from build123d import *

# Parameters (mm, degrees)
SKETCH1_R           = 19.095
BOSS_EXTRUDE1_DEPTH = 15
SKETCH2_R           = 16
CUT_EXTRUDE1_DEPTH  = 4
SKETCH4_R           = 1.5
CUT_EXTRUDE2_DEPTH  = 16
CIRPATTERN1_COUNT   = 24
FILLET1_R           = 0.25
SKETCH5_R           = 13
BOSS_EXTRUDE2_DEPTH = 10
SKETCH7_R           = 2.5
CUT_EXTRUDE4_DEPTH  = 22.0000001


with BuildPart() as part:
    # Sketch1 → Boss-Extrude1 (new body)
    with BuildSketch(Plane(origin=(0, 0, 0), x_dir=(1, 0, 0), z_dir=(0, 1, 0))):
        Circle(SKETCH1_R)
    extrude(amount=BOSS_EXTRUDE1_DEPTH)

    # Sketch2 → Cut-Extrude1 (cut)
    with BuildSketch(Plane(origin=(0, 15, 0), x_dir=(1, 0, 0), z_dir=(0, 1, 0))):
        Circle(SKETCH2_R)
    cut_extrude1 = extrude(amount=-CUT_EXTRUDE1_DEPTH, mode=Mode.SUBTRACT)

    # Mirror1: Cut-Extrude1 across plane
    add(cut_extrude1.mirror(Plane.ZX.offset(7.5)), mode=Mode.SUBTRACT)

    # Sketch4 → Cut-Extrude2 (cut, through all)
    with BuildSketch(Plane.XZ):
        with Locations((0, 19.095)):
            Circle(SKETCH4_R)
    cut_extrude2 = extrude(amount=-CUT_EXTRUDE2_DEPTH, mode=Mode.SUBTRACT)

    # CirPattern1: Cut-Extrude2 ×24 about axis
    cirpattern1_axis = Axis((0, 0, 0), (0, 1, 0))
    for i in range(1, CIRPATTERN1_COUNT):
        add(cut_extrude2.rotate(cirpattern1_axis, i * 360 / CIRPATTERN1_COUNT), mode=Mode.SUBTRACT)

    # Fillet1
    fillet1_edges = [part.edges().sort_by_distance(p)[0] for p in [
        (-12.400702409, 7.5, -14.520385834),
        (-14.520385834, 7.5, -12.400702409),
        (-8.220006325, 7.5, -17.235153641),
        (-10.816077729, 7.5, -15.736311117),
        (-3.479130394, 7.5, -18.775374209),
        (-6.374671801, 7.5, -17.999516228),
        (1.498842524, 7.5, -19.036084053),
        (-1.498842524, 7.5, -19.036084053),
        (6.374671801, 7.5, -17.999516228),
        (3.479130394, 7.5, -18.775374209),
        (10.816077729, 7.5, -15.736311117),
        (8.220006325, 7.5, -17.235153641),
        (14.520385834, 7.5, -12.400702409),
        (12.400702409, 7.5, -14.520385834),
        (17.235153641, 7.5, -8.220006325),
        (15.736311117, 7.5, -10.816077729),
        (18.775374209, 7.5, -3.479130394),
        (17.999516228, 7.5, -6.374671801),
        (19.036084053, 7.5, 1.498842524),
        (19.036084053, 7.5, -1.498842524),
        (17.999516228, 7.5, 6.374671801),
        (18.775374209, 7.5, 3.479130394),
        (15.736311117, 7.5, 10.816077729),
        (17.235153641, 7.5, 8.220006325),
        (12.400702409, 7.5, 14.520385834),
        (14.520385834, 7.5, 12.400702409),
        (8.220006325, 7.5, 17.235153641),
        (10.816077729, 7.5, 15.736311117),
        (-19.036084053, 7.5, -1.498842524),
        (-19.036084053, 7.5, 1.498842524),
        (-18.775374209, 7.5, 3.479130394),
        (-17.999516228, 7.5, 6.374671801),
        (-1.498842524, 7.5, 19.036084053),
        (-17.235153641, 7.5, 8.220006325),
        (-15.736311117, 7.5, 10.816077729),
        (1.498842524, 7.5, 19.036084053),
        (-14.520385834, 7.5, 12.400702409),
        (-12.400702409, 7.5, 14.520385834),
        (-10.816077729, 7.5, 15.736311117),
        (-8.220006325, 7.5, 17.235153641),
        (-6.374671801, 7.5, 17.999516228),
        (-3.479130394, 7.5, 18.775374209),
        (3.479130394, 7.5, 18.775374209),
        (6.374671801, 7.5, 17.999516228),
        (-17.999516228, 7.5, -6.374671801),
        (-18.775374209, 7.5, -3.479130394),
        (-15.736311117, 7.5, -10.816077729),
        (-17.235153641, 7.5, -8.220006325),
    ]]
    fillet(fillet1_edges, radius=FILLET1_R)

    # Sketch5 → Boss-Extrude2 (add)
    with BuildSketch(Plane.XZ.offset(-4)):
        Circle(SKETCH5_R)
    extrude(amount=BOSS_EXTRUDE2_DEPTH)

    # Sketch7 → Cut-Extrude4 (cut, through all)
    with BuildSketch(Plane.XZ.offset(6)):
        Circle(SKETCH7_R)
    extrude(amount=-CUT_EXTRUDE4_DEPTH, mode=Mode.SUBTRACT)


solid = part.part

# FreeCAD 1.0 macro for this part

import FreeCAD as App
import Part
import Sketcher

V = App.Vector


def edges_at(feature, points):
    """Names of the edges that pass closest to the given points."""
    edges = feature.Shape.Edges
    near = lambda p: min(range(len(edges)), key=lambda i: edges[i].distToShape(Part.Vertex(*p))[0])
    return sorted({f"Edge{near(p) + 1}" for p in points})

doc = App.newDocument("Part")
body = doc.addObject("PartDesign::Body", "Body")

# Sketch on XZ plane
sketch1 = body.newObject("Sketcher::SketchObject", "Sketch")
sketch1.AttachmentSupport = (doc.getObject("XZ_Plane"), [""])
sketch1.MapMode = "FlatFace"
sketch1.addGeometry(Part.Circle(V(0, 0, 0), V(0, 0, 1), 19.095), False)
sketch1.addConstraint([
    Sketcher.Constraint("Coincident", 0, 3, -1, 1),
    Sketcher.Constraint("Diameter", 0, 38.19),
])
pad1 = body.newObject("PartDesign::Pad", "Pad")
pad1.Profile = sketch1
pad1.Length = 15
pad1.Reversed = True

# Sketch on XZ plane
sketch2 = body.newObject("Sketcher::SketchObject", "Sketch001")
sketch2.AttachmentSupport = (doc.getObject("XZ_Plane"), [""])
sketch2.MapMode = "FlatFace"
sketch2.AttachmentOffset = App.Placement(V(0, 0, -15), App.Rotation())
sketch2.addGeometry(Part.Circle(V(0, 0, 0), V(0, 0, 1), 16), False)
sketch2.addConstraint([
    Sketcher.Constraint("Coincident", 0, 3, -1, 1),
    Sketcher.Constraint("Diameter", 0, 32.0),
])
pocket1 = body.newObject("PartDesign::Pocket", "Pocket")
pocket1.Profile = sketch2
pocket1.Length = 4
pocket1.Reversed = True
doc.recompute()

datumplane = body.newObject("PartDesign::Plane", "DatumPlane")
datumplane.AttachmentSupport = (doc.getObject("XZ_Plane"), [""])
datumplane.MapMode = "FlatFace"
datumplane.AttachmentOffset = App.Placement(V(0, 0, -7.5), App.Rotation())
mirrored = body.newObject("PartDesign::Mirrored", "Mirrored")
mirrored.Originals = [pocket1]
mirrored.MirrorPlane = (datumplane, [""])
body.Tip = mirrored

# Sketch on XZ plane
sketch3 = body.newObject("Sketcher::SketchObject", "Sketch002")
sketch3.AttachmentSupport = (doc.getObject("XZ_Plane"), [""])
sketch3.MapMode = "FlatFace"
sketch3.addGeometry(Part.Circle(V(0, 19.095, 0), V(0, 0, 1), 1.5), False)
sketch3.addConstraint([
    Sketcher.Constraint("PointOnObject", 0, 3, -2),
    Sketcher.Constraint("Diameter", 0, 3.0),
    Sketcher.Constraint("DistanceY", -1, 1, 0, 3, 19.095),
])
pocket2 = body.newObject("PartDesign::Pocket", "Pocket001")
pocket2.Profile = sketch3
pocket2.Type = "ThroughAll"
doc.recompute()

polarpattern = body.newObject("PartDesign::PolarPattern", "PolarPattern")
polarpattern.Originals = [pocket2]
polarpattern.Axis = (doc.getObject("Y_Axis"), [""])
polarpattern.Angle = 360
polarpattern.Occurrences = 24
body.Tip = polarpattern
doc.recompute()

fillet = body.newObject("PartDesign::Fillet", "Fillet")
fillet.Base = (polarpattern, edges_at(polarpattern, [
    (-12.401, 7.5, -14.52),
    (-14.52, 7.5, -12.401),
    (-8.22, 7.5, -17.235),
    (-10.816, 7.5, -15.736),
    (-3.479, 7.5, -18.775),
    (-6.375, 7.5, -18),
    (1.499, 7.5, -19.036),
    (-1.499, 7.5, -19.036),
    (6.375, 7.5, -18),
    (3.479, 7.5, -18.775),
    (10.816, 7.5, -15.736),
    (8.22, 7.5, -17.235),
    (14.52, 7.5, -12.401),
    (12.401, 7.5, -14.52),
    (17.235, 7.5, -8.22),
    (15.736, 7.5, -10.816),
    (18.775, 7.5, -3.479),
    (18, 7.5, -6.375),
    (19.036, 7.5, 1.499),
    (19.036, 7.5, -1.499),
    (18, 7.5, 6.375),
    (18.775, 7.5, 3.479),
    (15.736, 7.5, 10.816),
    (17.235, 7.5, 8.22),
    (12.401, 7.5, 14.52),
    (14.52, 7.5, 12.401),
    (8.22, 7.5, 17.235),
    (10.816, 7.5, 15.736),
    (-19.036, 7.5, -1.499),
    (-19.036, 7.5, 1.499),
    (-18.775, 7.5, 3.479),
    (-18, 7.5, 6.375),
    (-1.499, 7.5, 19.036),
    (-17.235, 7.5, 8.22),
    (-15.736, 7.5, 10.816),
    (1.499, 7.5, 19.036),
    (-14.52, 7.5, 12.401),
    (-12.401, 7.5, 14.52),
    (-10.816, 7.5, 15.736),
    (-8.22, 7.5, 17.235),
    (-6.375, 7.5, 18),
    (-3.479, 7.5, 18.775),
    (3.479, 7.5, 18.775),
    (6.375, 7.5, 18),
    (-18, 7.5, -6.375),
    (-18.775, 7.5, -3.479),
    (-15.736, 7.5, -10.816),
    (-17.235, 7.5, -8.22),
]))
fillet.Radius = 0.25

# Sketch on XZ plane
sketch4 = body.newObject("Sketcher::SketchObject", "Sketch003")
sketch4.AttachmentSupport = (doc.getObject("XZ_Plane"), [""])
sketch4.MapMode = "FlatFace"
sketch4.AttachmentOffset = App.Placement(V(0, 0, -4), App.Rotation())
sketch4.addGeometry(Part.Circle(V(0, 0, 0), V(0, 0, 1), 13), False)
sketch4.addConstraint([
    Sketcher.Constraint("Coincident", 0, 3, -1, 1),
    Sketcher.Constraint("Diameter", 0, 26.0),
])
pad2 = body.newObject("PartDesign::Pad", "Pad001")
pad2.Profile = sketch4
pad2.Length = 10

# Sketch on XZ plane
sketch5 = body.newObject("Sketcher::SketchObject", "Sketch004")
sketch5.AttachmentSupport = (doc.getObject("XZ_Plane"), [""])
sketch5.MapMode = "FlatFace"
sketch5.AttachmentOffset = App.Placement(V(0, 0, 6), App.Rotation())
sketch5.addGeometry(Part.Circle(V(0, 0, 0), V(0, 0, 1), 2.5), False)
sketch5.addConstraint([
    Sketcher.Constraint("Coincident", 0, 3, -1, 1),
    Sketcher.Constraint("Diameter", 0, 5.0),
])
pocket3 = body.newObject("PartDesign::Pocket", "Pocket002")
pocket3.Profile = sketch5
pocket3.Type = "ThroughAll"

doc.recompute()
